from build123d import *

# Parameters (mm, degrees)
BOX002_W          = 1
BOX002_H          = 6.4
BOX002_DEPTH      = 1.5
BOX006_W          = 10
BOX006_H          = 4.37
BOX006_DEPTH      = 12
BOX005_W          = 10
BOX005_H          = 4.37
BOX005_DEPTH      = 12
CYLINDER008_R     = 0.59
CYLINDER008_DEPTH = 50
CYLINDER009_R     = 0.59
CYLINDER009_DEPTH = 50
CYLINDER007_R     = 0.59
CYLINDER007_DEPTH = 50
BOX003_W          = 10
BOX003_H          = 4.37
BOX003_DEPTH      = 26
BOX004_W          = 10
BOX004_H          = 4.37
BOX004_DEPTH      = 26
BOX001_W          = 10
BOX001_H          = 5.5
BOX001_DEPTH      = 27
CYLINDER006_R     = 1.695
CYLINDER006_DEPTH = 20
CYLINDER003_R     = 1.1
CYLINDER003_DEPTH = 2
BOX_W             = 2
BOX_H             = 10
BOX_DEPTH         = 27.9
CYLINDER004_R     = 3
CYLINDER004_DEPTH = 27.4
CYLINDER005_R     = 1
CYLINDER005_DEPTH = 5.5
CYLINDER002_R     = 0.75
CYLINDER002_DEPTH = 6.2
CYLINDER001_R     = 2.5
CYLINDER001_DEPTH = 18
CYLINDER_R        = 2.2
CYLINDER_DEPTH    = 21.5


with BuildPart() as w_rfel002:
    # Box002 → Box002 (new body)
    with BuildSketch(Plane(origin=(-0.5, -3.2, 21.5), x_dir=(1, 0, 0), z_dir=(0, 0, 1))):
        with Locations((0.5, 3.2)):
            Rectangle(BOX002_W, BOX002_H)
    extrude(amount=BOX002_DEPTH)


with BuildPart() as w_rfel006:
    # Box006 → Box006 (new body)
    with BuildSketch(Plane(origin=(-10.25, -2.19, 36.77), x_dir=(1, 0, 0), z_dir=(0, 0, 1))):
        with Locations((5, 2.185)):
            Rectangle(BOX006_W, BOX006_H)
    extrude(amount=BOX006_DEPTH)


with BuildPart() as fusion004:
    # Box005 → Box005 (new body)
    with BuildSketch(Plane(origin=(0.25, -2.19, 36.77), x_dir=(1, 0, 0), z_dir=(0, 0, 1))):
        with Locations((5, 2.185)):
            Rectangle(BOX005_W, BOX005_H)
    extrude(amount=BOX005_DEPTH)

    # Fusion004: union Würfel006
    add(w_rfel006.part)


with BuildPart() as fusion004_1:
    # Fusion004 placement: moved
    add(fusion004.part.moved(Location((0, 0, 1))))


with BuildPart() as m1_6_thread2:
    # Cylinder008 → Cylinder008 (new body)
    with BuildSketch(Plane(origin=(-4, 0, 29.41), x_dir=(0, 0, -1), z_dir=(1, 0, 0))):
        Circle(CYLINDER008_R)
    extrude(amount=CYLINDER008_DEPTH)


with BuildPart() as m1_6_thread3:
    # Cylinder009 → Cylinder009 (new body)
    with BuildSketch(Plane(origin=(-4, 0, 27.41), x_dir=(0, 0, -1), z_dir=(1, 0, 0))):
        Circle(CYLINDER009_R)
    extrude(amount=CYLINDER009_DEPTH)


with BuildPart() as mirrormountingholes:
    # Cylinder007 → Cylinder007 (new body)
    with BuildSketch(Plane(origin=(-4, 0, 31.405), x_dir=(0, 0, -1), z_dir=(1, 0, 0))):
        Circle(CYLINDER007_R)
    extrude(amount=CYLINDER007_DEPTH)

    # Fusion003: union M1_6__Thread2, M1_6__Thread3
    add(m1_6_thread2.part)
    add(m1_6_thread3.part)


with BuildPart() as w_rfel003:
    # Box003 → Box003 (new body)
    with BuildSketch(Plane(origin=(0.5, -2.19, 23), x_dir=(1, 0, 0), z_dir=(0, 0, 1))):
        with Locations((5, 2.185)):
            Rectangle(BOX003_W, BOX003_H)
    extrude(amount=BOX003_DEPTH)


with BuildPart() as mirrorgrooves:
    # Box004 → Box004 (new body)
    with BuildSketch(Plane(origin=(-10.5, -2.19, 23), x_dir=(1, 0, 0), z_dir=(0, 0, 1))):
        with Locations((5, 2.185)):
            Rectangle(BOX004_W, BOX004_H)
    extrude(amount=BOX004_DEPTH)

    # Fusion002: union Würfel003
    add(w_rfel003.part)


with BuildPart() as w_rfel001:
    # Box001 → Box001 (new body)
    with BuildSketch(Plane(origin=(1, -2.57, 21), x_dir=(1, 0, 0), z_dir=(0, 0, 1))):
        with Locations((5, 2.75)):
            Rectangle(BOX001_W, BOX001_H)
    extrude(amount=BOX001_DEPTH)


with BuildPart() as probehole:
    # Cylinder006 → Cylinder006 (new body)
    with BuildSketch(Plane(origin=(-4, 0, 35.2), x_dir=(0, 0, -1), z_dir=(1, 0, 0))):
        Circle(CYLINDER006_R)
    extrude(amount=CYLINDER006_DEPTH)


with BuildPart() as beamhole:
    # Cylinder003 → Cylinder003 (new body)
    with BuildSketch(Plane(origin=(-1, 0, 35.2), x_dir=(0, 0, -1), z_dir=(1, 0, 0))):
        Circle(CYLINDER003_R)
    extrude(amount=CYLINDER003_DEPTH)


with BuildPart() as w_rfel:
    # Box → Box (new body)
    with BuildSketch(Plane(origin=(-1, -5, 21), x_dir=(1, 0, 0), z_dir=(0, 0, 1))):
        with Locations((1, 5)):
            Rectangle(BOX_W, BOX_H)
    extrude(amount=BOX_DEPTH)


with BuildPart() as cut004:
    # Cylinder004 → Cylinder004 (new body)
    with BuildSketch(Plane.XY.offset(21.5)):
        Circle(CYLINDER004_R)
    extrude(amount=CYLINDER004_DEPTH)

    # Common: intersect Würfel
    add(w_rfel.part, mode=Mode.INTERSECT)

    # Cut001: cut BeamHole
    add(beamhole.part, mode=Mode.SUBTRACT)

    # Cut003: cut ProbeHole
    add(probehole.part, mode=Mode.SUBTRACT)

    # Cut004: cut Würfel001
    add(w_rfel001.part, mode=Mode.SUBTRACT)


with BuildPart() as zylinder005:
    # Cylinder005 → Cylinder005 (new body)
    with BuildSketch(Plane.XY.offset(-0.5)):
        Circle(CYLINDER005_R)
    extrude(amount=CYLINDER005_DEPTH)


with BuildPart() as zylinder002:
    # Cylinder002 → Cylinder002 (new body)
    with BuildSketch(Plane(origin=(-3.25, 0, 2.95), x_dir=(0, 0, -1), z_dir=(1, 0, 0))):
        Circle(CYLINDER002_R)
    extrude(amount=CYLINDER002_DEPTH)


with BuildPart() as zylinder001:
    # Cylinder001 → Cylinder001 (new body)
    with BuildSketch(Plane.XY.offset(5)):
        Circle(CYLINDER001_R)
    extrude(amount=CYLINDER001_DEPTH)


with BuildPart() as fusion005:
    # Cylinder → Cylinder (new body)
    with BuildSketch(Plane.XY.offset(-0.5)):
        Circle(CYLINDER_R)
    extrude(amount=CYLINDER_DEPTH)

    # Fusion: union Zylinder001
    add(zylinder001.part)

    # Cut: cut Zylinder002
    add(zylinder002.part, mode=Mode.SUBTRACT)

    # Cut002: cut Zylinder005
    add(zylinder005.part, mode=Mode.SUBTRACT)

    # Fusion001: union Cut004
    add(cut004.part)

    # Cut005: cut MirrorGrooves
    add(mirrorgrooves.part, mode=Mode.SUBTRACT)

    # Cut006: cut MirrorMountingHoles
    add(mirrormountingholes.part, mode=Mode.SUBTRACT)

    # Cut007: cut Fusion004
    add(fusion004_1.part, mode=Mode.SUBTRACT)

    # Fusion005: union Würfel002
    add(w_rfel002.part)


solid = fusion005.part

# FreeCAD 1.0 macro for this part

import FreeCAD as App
import Part
import Sketcher

doc = App.newDocument("Part")
body = doc.addObject("PartDesign::Body", "Body")

# Sketch on XY plane
sketch1 = body.newObject("Sketcher::SketchObject", "Sketch")
sketch1.AttachmentSupport = (doc.getObject("XY_Plane"), [""])
sketch1.MapMode = "FlatFace"
sketch1.AttachmentOffset = App.Placement(App.Vector(0, 0, 21.5), App.Rotation())
sketch1.addGeometry([
    Part.LineSegment(App.Vector(-0.5, 3.2, 0), App.Vector(-0.5, -3.2, 0)),
    Part.LineSegment(App.Vector(-0.5, -3.2, 0), App.Vector(0.5, -3.2, 0)),
    Part.LineSegment(App.Vector(0.5, -3.2, 0), App.Vector(0.5, 3.2, 0)),
    Part.LineSegment(App.Vector(0.5, 3.2, 0), App.Vector(-0.5, 3.2, 0)),
], False)
sketch1.addConstraint([
    Sketcher.Constraint("Coincident", 0, 2, 1, 1),
    Sketcher.Constraint("Coincident", 1, 2, 2, 1),
    Sketcher.Constraint("Coincident", 2, 2, 3, 1),
    Sketcher.Constraint("Coincident", 3, 2, 0, 1),
    Sketcher.Constraint("Vertical", 0),
    Sketcher.Constraint("Horizontal", 1),
    Sketcher.Constraint("Vertical", 2),
    Sketcher.Constraint("Horizontal", 3),
    Sketcher.Constraint("Symmetric", 0, 2, 2, 2, -1, 1),
    Sketcher.Constraint("DistanceX", 1, 1, 1, 2, 1.0),
    Sketcher.Constraint("DistanceY", 0, 2, 0, 1, 6.4),
])
pad1 = body.newObject("PartDesign::Pad", "Pad")
pad1.Profile = sketch1
pad1.Length = 1.5
body2 = doc.addObject("PartDesign::Body", "Body001")

# Sketch on XY plane
sketch2 = body2.newObject("Sketcher::SketchObject", "Sketch001")
sketch2.AttachmentSupport = (doc.getObject("XY_Plane001"), [""])
sketch2.MapMode = "FlatFace"
sketch2.AttachmentOffset = App.Placement(App.Vector(0, 0, 36.77), App.Rotation())
sketch2.addGeometry([
    Part.LineSegment(App.Vector(-10.2, 2.2, 0), App.Vector(-10.2, -2.2, 0)),
    Part.LineSegment(App.Vector(-10.2, -2.2, 0), App.Vector(-0.2, -2.2, 0)),
    Part.LineSegment(App.Vector(-0.2, -2.2, 0), App.Vector(-0.2, 2.2, 0)),
    Part.LineSegment(App.Vector(-0.2, 2.2, 0), App.Vector(-10.2, 2.2, 0)),
], False)
sketch2.addConstraint([
    Sketcher.Constraint("Coincident", 0, 2, 1, 1),
    Sketcher.Constraint("Coincident", 1, 2, 2, 1),
    Sketcher.Constraint("Coincident", 2, 2, 3, 1),
    Sketcher.Constraint("Coincident", 3, 2, 0, 1),
    Sketcher.Constraint("Vertical", 0),
    Sketcher.Constraint("Horizontal", 1),
    Sketcher.Constraint("Vertical", 2),
    Sketcher.Constraint("Horizontal", 3),
    Sketcher.Constraint("DistanceX", 1, 1, 1, 2, 10.0),
    Sketcher.Constraint("DistanceY", 0, 2, 0, 1, 4.37),
    Sketcher.Constraint("DistanceX", 0, 2, -1, 1, 10.25),
    Sketcher.Constraint("DistanceY", 0, 2, -1, 1, 2.19),
])
pad2 = body2.newObject("PartDesign::Pad", "Pad001")
pad2.Profile = sketch2
pad2.Length = 12
body3 = doc.addObject("PartDesign::Body", "Body002")
body3.AllowCompound = True

# Sketch on XY plane
sketch3 = body3.newObject("Sketcher::SketchObject", "Sketch002")
sketch3.AttachmentSupport = (doc.getObject("XY_Plane002"), [""])
sketch3.MapMode = "FlatFace"
sketch3.AttachmentOffset = App.Placement(App.Vector(0, 0, 36.77), App.Rotation())
sketch3.addGeometry([
    Part.LineSegment(App.Vector(0.2, 2.2, 0), App.Vector(0.2, -2.2, 0)),
    Part.LineSegment(App.Vector(0.2, -2.2, 0), App.Vector(10.2, -2.2, 0)),
    Part.LineSegment(App.Vector(10.2, -2.2, 0), App.Vector(10.2, 2.2, 0)),
    Part.LineSegment(App.Vector(10.2, 2.2, 0), App.Vector(0.2, 2.2, 0)),
], False)
sketch3.addConstraint([
    Sketcher.Constraint("Coincident", 0, 2, 1, 1),
    Sketcher.Constraint("Coincident", 1, 2, 2, 1),
    Sketcher.Constraint("Coincident", 2, 2, 3, 1),
    Sketcher.Constraint("Coincident", 3, 2, 0, 1),
    Sketcher.Constraint("Vertical", 0),
    Sketcher.Constraint("Horizontal", 1),
    Sketcher.Constraint("Vertical", 2),
    Sketcher.Constraint("Horizontal", 3),
    Sketcher.Constraint("DistanceX", 1, 1, 1, 2, 10.0),
    Sketcher.Constraint("DistanceY", 0, 2, 0, 1, 4.37),
    Sketcher.Constraint("DistanceX", -1, 1, 0, 2, 0.25),
    Sketcher.Constraint("DistanceY", 0, 2, -1, 1, 2.19),
])
pad3 = body3.newObject("PartDesign::Pad", "Pad002")
pad3.Profile = sketch3
pad3.Length = 12
doc.recompute()

boolean = body3.newObject("PartDesign::Boolean", "Boolean")
boolean.Type = "Fuse"
boolean.addObjects([body2])
body4 = doc.addObject("PartDesign::Body", "Body003")
body4.AllowCompound = True
doc.recompute()

body3.Placement = App.Placement(App.Vector(0, 0, 1), App.Rotation(App.Vector(0, 0, 1), 0))
boolean2 = body4.newObject("PartDesign::Boolean", "Boolean001")
boolean2.Type = "Fuse"
boolean2.addObjects([body3])
body5 = doc.addObject("PartDesign::Body", "Body004")

# Sketch on YZ plane
sketch4 = body5.newObject("Sketcher::SketchObject", "Sketch003")
sketch4.AttachmentSupport = (doc.getObject("YZ_Plane004"), [""])
sketch4.MapMode = "FlatFace"
sketch4.AttachmentOffset = App.Placement(App.Vector(0, 0, -4), App.Rotation())
sketch4.addGeometry(Part.Circle(App.Vector(0, 29.4, 0), App.Vector(0, 0, 1), 0.6), False)
sketch4.addConstraint([
    Sketcher.Constraint("PointOnObject", 0, 3, -2),
    Sketcher.Constraint("Diameter", 0, 1.18),
    Sketcher.Constraint("DistanceY", -1, 1, 0, 3, 29.41),
])
pad4 = body5.newObject("PartDesign::Pad", "Pad003")
pad4.Profile = sketch4
pad4.Length = 50
body6 = doc.addObject("PartDesign::Body", "Body005")

# Sketch on YZ plane
sketch5 = body6.newObject("Sketcher::SketchObject", "Sketch004")
sketch5.AttachmentSupport = (doc.getObject("YZ_Plane005"), [""])
sketch5.MapMode = "FlatFace"
sketch5.AttachmentOffset = App.Placement(App.Vector(0, 0, -4), App.Rotation())
sketch5.addGeometry(Part.Circle(App.Vector(0, 27.4, 0), App.Vector(0, 0, 1), 0.6), False)
sketch5.addConstraint([
    Sketcher.Constraint("PointOnObject", 0, 3, -2),
    Sketcher.Constraint("Diameter", 0, 1.18),
    Sketcher.Constraint("DistanceY", -1, 1, 0, 3, 27.41),
])
pad5 = body6.newObject("PartDesign::Pad", "Pad004")
pad5.Profile = sketch5
pad5.Length = 50
body7 = doc.addObject("PartDesign::Body", "Body006")
body7.AllowCompound = True

# Sketch on YZ plane
sketch6 = body7.newObject("Sketcher::SketchObject", "Sketch005")
sketch6.AttachmentSupport = (doc.getObject("YZ_Plane006"), [""])
sketch6.MapMode = "FlatFace"
sketch6.AttachmentOffset = App.Placement(App.Vector(0, 0, -4), App.Rotation())
sketch6.addGeometry(Part.Circle(App.Vector(0, 31.4, 0), App.Vector(0, 0, 1), 0.6), False)
sketch6.addConstraint([
    Sketcher.Constraint("PointOnObject", 0, 3, -2),
    Sketcher.Constraint("Diameter", 0, 1.18),
    Sketcher.Constraint("DistanceY", -1, 1, 0, 3, 31.405),
])
pad6 = body7.newObject("PartDesign::Pad", "Pad005")
pad6.Profile = sketch6
pad6.Length = 50
doc.recompute()

boolean3 = body7.newObject("PartDesign::Boolean", "Boolean002")
boolean3.Type = "Fuse"
boolean3.addObjects([body5])
doc.recompute()

boolean4 = body7.newObject("PartDesign::Boolean", "Boolean003")
boolean4.Type = "Fuse"
boolean4.addObjects([body6])
body8 = doc.addObject("PartDesign::Body", "Body007")

# Sketch on XY plane
sketch7 = body8.newObject("Sketcher::SketchObject", "Sketch006")
sketch7.AttachmentSupport = (doc.getObject("XY_Plane007"), [""])
sketch7.MapMode = "FlatFace"
sketch7.AttachmentOffset = App.Placement(App.Vector(0, 0, 23), App.Rotation())
sketch7.addGeometry([
    Part.LineSegment(App.Vector(0.5, 2.2, 0), App.Vector(0.5, -2.2, 0)),
    Part.LineSegment(App.Vector(0.5, -2.2, 0), App.Vector(10.5, -2.2, 0)),
    Part.LineSegment(App.Vector(10.5, -2.2, 0), App.Vector(10.5, 2.2, 0)),
    Part.LineSegment(App.Vector(10.5, 2.2, 0), App.Vector(0.5, 2.2, 0)),
], False)
sketch7.addConstraint([
    Sketcher.Constraint("Coincident", 0, 2, 1, 1),
    Sketcher.Constraint("Coincident", 1, 2, 2, 1),
    Sketcher.Constraint("Coincident", 2, 2, 3, 1),
    Sketcher.Constraint("Coincident", 3, 2, 0, 1),
    Sketcher.Constraint("Vertical", 0),
    Sketcher.Constraint("Horizontal", 1),
    Sketcher.Constraint("Vertical", 2),
    Sketcher.Constraint("Horizontal", 3),
    Sketcher.Constraint("DistanceX", 1, 1, 1, 2, 10.0),
    Sketcher.Constraint("DistanceY", 0, 2, 0, 1, 4.37),
    Sketcher.Constraint("DistanceX", -1, 1, 0, 2, 0.5),
    Sketcher.Constraint("DistanceY", 0, 2, -1, 1, 2.19),
])
pad7 = body8.newObject("PartDesign::Pad", "Pad006")
pad7.Profile = sketch7
pad7.Length = 26
body9 = doc.addObject("PartDesign::Body", "Body008")
body9.AllowCompound = True

# Sketch on XY plane
sketch8 = body9.newObject("Sketcher::SketchObject", "Sketch007")
sketch8.AttachmentSupport = (doc.getObject("XY_Plane008"), [""])
sketch8.MapMode = "FlatFace"
sketch8.AttachmentOffset = App.Placement(App.Vector(0, 0, 23), App.Rotation())
sketch8.addGeometry([
    Part.LineSegment(App.Vector(-10.5, 2.2, 0), App.Vector(-10.5, -2.2, 0)),
    Part.LineSegment(App.Vector(-10.5, -2.2, 0), App.Vector(-0.5, -2.2, 0)),
    Part.LineSegment(App.Vector(-0.5, -2.2, 0), App.Vector(-0.5, 2.2, 0)),
    Part.LineSegment(App.Vector(-0.5, 2.2, 0), App.Vector(-10.5, 2.2, 0)),
], False)
sketch8.addConstraint([
    Sketcher.Constraint("Coincident", 0, 2, 1, 1),
    Sketcher.Constraint("Coincident", 1, 2, 2, 1),
    Sketcher.Constraint("Coincident", 2, 2, 3, 1),
    Sketcher.Constraint("Coincident", 3, 2, 0, 1),
    Sketcher.Constraint("Vertical", 0),
    Sketcher.Constraint("Horizontal", 1),
    Sketcher.Constraint("Vertical", 2),
    Sketcher.Constraint("Horizontal", 3),
    Sketcher.Constraint("DistanceX", 1, 1, 1, 2, 10.0),
    Sketcher.Constraint("DistanceY", 0, 2, 0, 1, 4.37),
    Sketcher.Constraint("DistanceX", 0, 2, -1, 1, 10.5),
    Sketcher.Constraint("DistanceY", 0, 2, -1, 1, 2.19),
])
pad8 = body9.newObject("PartDesign::Pad", "Pad007")
pad8.Profile = sketch8
pad8.Length = 26
doc.recompute()

boolean5 = body9.newObject("PartDesign::Boolean", "Boolean004")
boolean5.Type = "Fuse"
boolean5.addObjects([body8])
body10 = doc.addObject("PartDesign::Body", "Body009")

# Sketch on XY plane
sketch9 = body10.newObject("Sketcher::SketchObject", "Sketch008")
sketch9.AttachmentSupport = (doc.getObject("XY_Plane009"), [""])
sketch9.MapMode = "FlatFace"
sketch9.AttachmentOffset = App.Placement(App.Vector(0, 0, 21), App.Rotation())
sketch9.addGeometry([
    Part.LineSegment(App.Vector(1, 3, 0), App.Vector(1, -3, 0)),
    Part.LineSegment(App.Vector(1, -3, 0), App.Vector(11, -3, 0)),
    Part.LineSegment(App.Vector(11, -3, 0), App.Vector(11, 3, 0)),
    Part.LineSegment(App.Vector(11, 3, 0), App.Vector(1, 3, 0)),
], False)
sketch9.addConstraint([
    Sketcher.Constraint("Coincident", 0, 2, 1, 1),
    Sketcher.Constraint("Coincident", 1, 2, 2, 1),
    Sketcher.Constraint("Coincident", 2, 2, 3, 1),
    Sketcher.Constraint("Coincident", 3, 2, 0, 1),
    Sketcher.Constraint("Vertical", 0),
    Sketcher.Constraint("Horizontal", 1),
    Sketcher.Constraint("Vertical", 2),
    Sketcher.Constraint("Horizontal", 3),
    Sketcher.Constraint("DistanceX", 1, 1, 1, 2, 10.0),
    Sketcher.Constraint("DistanceY", 0, 2, 0, 1, 5.5),
    Sketcher.Constraint("DistanceX", -1, 1, 0, 2, 1.0),
    Sketcher.Constraint("DistanceY", 0, 2, -1, 1, 2.57),
])
pad9 = body10.newObject("PartDesign::Pad", "Pad008")
pad9.Profile = sketch9
pad9.Length = 27
body11 = doc.addObject("PartDesign::Body", "Body010")

# Sketch on YZ plane
sketch10 = body11.newObject("Sketcher::SketchObject", "Sketch009")
sketch10.AttachmentSupport = (doc.getObject("YZ_Plane010"), [""])
sketch10.MapMode = "FlatFace"
sketch10.AttachmentOffset = App.Placement(App.Vector(0, 0, -4), App.Rotation())
sketch10.addGeometry(Part.Circle(App.Vector(0, 35.2, 0), App.Vector(0, 0, 1), 1.7), False)
sketch10.addConstraint([
    Sketcher.Constraint("PointOnObject", 0, 3, -2),
    Sketcher.Constraint("Diameter", 0, 3.39),
    Sketcher.Constraint("DistanceY", -1, 1, 0, 3, 35.2),
])
pad10 = body11.newObject("PartDesign::Pad", "Pad009")
pad10.Profile = sketch10
pad10.Length = 20
body12 = doc.addObject("PartDesign::Body", "Body011")

# Sketch on YZ plane
sketch11 = body12.newObject("Sketcher::SketchObject", "Sketch010")
sketch11.AttachmentSupport = (doc.getObject("YZ_Plane011"), [""])
sketch11.MapMode = "FlatFace"
sketch11.AttachmentOffset = App.Placement(App.Vector(0, 0, -1), App.Rotation())
sketch11.addGeometry(Part.Circle(App.Vector(0, 35.2, 0), App.Vector(0, 0, 1), 1.1), False)
sketch11.addConstraint([
    Sketcher.Constraint("PointOnObject", 0, 3, -2),
    Sketcher.Constraint("Diameter", 0, 2.2),
    Sketcher.Constraint("DistanceY", -1, 1, 0, 3, 35.2),
])
pad11 = body12.newObject("PartDesign::Pad", "Pad010")
pad11.Profile = sketch11
pad11.Length = 2
body13 = doc.addObject("PartDesign::Body", "Body012")

# Sketch on XY plane
sketch12 = body13.newObject("Sketcher::SketchObject", "Sketch011")
sketch12.AttachmentSupport = (doc.getObject("XY_Plane012"), [""])
sketch12.MapMode = "FlatFace"
sketch12.AttachmentOffset = App.Placement(App.Vector(0, 0, 21), App.Rotation())
sketch12.addGeometry([
    Part.LineSegment(App.Vector(-1, 5, 0), App.Vector(-1, -5, 0)),
    Part.LineSegment(App.Vector(-1, -5, 0), App.Vector(1, -5, 0)),
    Part.LineSegment(App.Vector(1, -5, 0), App.Vector(1, 5, 0)),
    Part.LineSegment(App.Vector(1, 5, 0), App.Vector(-1, 5, 0)),
], False)
sketch12.addConstraint([
    Sketcher.Constraint("Coincident", 0, 2, 1, 1),
    Sketcher.Constraint("Coincident", 1, 2, 2, 1),
    Sketcher.Constraint("Coincident", 2, 2, 3, 1),
    Sketcher.Constraint("Coincident", 3, 2, 0, 1),
    Sketcher.Constraint("Vertical", 0),
    Sketcher.Constraint("Horizontal", 1),
    Sketcher.Constraint("Vertical", 2),
    Sketcher.Constraint("Horizontal", 3),
    Sketcher.Constraint("Symmetric", 0, 2, 2, 2, -1, 1),
    Sketcher.Constraint("DistanceX", 1, 1, 1, 2, 2.0),
    Sketcher.Constraint("DistanceY", 0, 2, 0, 1, 10.0),
])
pad12 = body13.newObject("PartDesign::Pad", "Pad011")
pad12.Profile = sketch12
pad12.Length = 27.9
body14 = doc.addObject("PartDesign::Body", "Body013")

# Sketch on XY plane
sketch13 = body14.newObject("Sketcher::SketchObject", "Sketch012")
sketch13.AttachmentSupport = (doc.getObject("XY_Plane013"), [""])
sketch13.MapMode = "FlatFace"
sketch13.AttachmentOffset = App.Placement(App.Vector(0, 0, 21.5), App.Rotation())
sketch13.addGeometry(Part.Circle(App.Vector(0, 0, 0), App.Vector(0, 0, 1), 3), False)
sketch13.addConstraint([
    Sketcher.Constraint("Coincident", 0, 3, -1, 1),
    Sketcher.Constraint("Diameter", 0, 6.0),
])
pad13 = body14.newObject("PartDesign::Pad", "Pad012")
pad13.Profile = sketch13
pad13.Length = 27.4
doc.recompute()

boolean6 = body14.newObject("PartDesign::Boolean", "Boolean005")
boolean6.Type = "Common"
boolean6.addObjects([body13])
doc.recompute()

boolean7 = body14.newObject("PartDesign::Boolean", "Boolean006")
boolean7.Type = "Cut"
boolean7.addObjects([body12])
doc.recompute()

boolean8 = body14.newObject("PartDesign::Boolean", "Boolean007")
boolean8.Type = "Cut"
boolean8.addObjects([body11])
doc.recompute()

boolean9 = body14.newObject("PartDesign::Boolean", "Boolean008")
boolean9.Type = "Cut"
boolean9.addObjects([body10])
body15 = doc.addObject("PartDesign::Body", "Body014")

# Sketch on XY plane
sketch14 = body15.newObject("Sketcher::SketchObject", "Sketch013")
sketch14.AttachmentSupport = (doc.getObject("XY_Plane014"), [""])
sketch14.MapMode = "FlatFace"
sketch14.AttachmentOffset = App.Placement(App.Vector(0, 0, -0.5), App.Rotation())
sketch14.addGeometry(Part.Circle(App.Vector(0, 0, 0), App.Vector(0, 0, 1), 1), False)
sketch14.addConstraint([
    Sketcher.Constraint("Coincident", 0, 3, -1, 1),
    Sketcher.Constraint("Diameter", 0, 2.0),
])
pad14 = body15.newObject("PartDesign::Pad", "Pad013")
pad14.Profile = sketch14
pad14.Length = 5.5
body16 = doc.addObject("PartDesign::Body", "Body015")

# Sketch on YZ plane
sketch15 = body16.newObject("Sketcher::SketchObject", "Sketch014")
sketch15.AttachmentSupport = (doc.getObject("YZ_Plane015"), [""])
sketch15.MapMode = "FlatFace"
sketch15.AttachmentOffset = App.Placement(App.Vector(0, 0, -3.25), App.Rotation())
sketch15.addGeometry(Part.Circle(App.Vector(0, 3, 0), App.Vector(0, 0, 1), 0.8), False)
sketch15.addConstraint([
    Sketcher.Constraint("PointOnObject", 0, 3, -2),
    Sketcher.Constraint("Diameter", 0, 1.5),
    Sketcher.Constraint("DistanceY", -1, 1, 0, 3, 2.95),
])
pad15 = body16.newObject("PartDesign::Pad", "Pad014")
pad15.Profile = sketch15
pad15.Length = 6.2
body17 = doc.addObject("PartDesign::Body", "Body016")

# Sketch on XY plane
sketch16 = body17.newObject("Sketcher::SketchObject", "Sketch015")
sketch16.AttachmentSupport = (doc.getObject("XY_Plane016"), [""])
sketch16.MapMode = "FlatFace"
sketch16.AttachmentOffset = App.Placement(App.Vector(0, 0, 5), App.Rotation())
sketch16.addGeometry(Part.Circle(App.Vector(0, 0, 0), App.Vector(0, 0, 1), 2.5), False)
sketch16.addConstraint([
    Sketcher.Constraint("Coincident", 0, 3, -1, 1),
    Sketcher.Constraint("Diameter", 0, 5.0),
])
pad16 = body17.newObject("PartDesign::Pad", "Pad015")
pad16.Profile = sketch16
pad16.Length = 18
body18 = doc.addObject("PartDesign::Body", "Body017")

# Sketch on XY plane
sketch17 = body18.newObject("Sketcher::SketchObject", "Sketch016")
sketch17.AttachmentSupport = (doc.getObject("XY_Plane017"), [""])
sketch17.MapMode = "FlatFace"
sketch17.AttachmentOffset = App.Placement(App.Vector(0, 0, -0.5), App.Rotation())
sketch17.addGeometry(Part.Circle(App.Vector(0, 0, 0), App.Vector(0, 0, 1), 2.2), False)
sketch17.addConstraint([
    Sketcher.Constraint("Coincident", 0, 3, -1, 1),
    Sketcher.Constraint("Diameter", 0, 4.4),
])
pad17 = body18.newObject("PartDesign::Pad", "Pad016")
pad17.Profile = sketch17
pad17.Length = 21.5
doc.recompute()

boolean10 = body18.newObject("PartDesign::Boolean", "Boolean009")
boolean10.Type = "Fuse"
boolean10.addObjects([body17])
doc.recompute()

boolean11 = body18.newObject("PartDesign::Boolean", "Boolean010")
boolean11.Type = "Cut"
boolean11.addObjects([body16])
doc.recompute()

boolean12 = body18.newObject("PartDesign::Boolean", "Boolean011")
boolean12.Type = "Cut"
boolean12.addObjects([body15])
doc.recompute()

boolean13 = body18.newObject("PartDesign::Boolean", "Boolean012")
boolean13.Type = "Fuse"
boolean13.addObjects([body14])
doc.recompute()

boolean14 = body18.newObject("PartDesign::Boolean", "Boolean013")
boolean14.Type = "Cut"
boolean14.addObjects([body9])
doc.recompute()

boolean15 = body18.newObject("PartDesign::Boolean", "Boolean014")
boolean15.Type = "Cut"
boolean15.addObjects([body7])
doc.recompute()

boolean16 = body18.newObject("PartDesign::Boolean", "Boolean015")
boolean16.Type = "Cut"
boolean16.addObjects([body4])
doc.recompute()

boolean17 = body18.newObject("PartDesign::Boolean", "Boolean016")
boolean17.Type = "Fuse"
boolean17.addObjects([body])

doc.recompute()
